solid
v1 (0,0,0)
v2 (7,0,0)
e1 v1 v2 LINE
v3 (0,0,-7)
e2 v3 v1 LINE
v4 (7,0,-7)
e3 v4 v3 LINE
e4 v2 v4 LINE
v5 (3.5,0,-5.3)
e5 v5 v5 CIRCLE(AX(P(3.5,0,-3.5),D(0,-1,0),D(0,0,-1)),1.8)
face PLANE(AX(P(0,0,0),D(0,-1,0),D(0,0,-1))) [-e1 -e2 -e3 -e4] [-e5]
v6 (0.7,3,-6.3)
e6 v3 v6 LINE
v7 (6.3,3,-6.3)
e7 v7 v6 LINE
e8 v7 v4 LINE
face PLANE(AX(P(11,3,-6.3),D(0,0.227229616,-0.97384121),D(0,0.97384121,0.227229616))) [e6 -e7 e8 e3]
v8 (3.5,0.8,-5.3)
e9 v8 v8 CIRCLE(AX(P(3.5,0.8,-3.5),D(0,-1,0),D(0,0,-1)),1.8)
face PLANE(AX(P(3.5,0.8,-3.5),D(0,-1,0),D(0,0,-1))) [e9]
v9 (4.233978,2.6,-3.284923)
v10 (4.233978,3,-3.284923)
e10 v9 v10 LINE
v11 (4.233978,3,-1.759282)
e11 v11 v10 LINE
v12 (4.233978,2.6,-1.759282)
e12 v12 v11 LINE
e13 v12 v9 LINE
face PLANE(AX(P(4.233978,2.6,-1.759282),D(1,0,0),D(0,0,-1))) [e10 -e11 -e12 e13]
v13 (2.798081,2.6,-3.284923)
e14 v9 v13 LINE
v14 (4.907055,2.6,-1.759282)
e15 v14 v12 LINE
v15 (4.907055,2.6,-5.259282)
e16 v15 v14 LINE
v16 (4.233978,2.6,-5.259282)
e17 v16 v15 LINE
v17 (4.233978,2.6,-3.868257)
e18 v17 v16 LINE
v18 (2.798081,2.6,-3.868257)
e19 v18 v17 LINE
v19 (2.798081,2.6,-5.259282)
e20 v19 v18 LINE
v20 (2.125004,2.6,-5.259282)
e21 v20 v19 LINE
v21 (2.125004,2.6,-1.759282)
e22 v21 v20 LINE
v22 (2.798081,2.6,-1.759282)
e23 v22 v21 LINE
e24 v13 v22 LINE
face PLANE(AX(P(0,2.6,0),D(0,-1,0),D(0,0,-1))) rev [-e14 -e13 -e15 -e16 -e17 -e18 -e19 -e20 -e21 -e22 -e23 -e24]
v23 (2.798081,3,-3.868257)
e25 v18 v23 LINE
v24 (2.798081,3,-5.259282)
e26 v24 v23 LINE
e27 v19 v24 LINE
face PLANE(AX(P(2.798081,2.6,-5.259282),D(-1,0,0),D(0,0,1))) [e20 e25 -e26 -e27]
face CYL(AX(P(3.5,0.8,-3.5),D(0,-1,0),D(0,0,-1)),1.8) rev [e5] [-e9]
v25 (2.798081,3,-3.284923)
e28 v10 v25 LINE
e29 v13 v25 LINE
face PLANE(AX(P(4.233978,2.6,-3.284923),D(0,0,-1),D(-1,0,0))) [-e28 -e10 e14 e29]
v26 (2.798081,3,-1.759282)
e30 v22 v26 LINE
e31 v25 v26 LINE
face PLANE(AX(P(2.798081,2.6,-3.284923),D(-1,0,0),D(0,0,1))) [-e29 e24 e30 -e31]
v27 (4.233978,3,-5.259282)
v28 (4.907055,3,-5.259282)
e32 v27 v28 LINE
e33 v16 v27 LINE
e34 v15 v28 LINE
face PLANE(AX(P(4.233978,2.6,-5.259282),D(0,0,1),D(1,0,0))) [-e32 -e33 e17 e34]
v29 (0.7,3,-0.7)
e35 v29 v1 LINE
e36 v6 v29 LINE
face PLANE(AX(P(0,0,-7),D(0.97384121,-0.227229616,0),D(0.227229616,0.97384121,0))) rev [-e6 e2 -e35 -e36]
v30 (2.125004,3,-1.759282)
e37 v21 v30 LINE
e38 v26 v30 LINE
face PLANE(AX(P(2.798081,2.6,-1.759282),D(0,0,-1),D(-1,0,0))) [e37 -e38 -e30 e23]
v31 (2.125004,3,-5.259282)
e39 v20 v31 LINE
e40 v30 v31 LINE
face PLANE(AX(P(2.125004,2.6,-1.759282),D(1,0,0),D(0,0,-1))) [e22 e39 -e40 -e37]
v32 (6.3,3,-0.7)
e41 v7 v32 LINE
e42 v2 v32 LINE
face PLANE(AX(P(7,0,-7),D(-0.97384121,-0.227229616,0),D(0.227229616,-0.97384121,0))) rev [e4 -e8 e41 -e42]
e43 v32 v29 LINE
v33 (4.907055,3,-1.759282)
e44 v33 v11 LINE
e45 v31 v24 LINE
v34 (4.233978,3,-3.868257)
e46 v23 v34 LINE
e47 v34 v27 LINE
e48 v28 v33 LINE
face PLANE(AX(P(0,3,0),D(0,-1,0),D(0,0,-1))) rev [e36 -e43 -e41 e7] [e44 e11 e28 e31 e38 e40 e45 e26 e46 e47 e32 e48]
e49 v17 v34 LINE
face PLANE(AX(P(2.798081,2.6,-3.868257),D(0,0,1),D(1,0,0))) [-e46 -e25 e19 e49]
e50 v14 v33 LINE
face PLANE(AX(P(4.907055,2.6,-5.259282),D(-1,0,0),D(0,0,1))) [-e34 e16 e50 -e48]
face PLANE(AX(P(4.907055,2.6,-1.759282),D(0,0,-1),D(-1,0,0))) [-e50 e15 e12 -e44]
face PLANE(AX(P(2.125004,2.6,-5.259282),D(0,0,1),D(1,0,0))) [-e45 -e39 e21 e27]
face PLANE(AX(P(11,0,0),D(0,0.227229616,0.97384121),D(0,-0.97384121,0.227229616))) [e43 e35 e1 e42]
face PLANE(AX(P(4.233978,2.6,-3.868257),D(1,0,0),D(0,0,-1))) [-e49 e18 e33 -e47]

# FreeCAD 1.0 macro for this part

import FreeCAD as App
import Part
import Sketcher
from FreeCAD import Vector
Q = App.Units.Quantity

doc = App.newDocument("Part")
params = doc.addObject("Spreadsheet::Sheet", "Params")
for row, (alias, value) in enumerate([
    ("sketch1_width", "7 mm"),
    ("pad1_length", "3 mm"),
    ("sketch2_height", "3 mm"),
    ("sketch2_width", "0.7 mm"),
    ("pocket1_length", "7 mm"),
    ("sketch3_width", "3 mm"),
    ("sketch3_height", "0.7 mm"),
    ("pocket2_length", "11 mm"),
    ("sketch4_diameter", "3.6 mm"),
    ("pocket3_length", "0.8 mm"),
    ("sketch5_height", "3.5 mm"),
    ("pocket4_length", "0.4 mm"),
], start=1):
    params.set(f"A{row}", alias)
    params.set(f"B{row}", "=" + value)
    params.setAlias(f"B{row}", alias)

body = doc.addObject("PartDesign::Body", "Body")

# Sketch on XZ plane
sketch1 = body.newObject("Sketcher::SketchObject", "Sketch")
sketch1.AttachmentSupport = (doc.getObject("XZ_Plane"), [""])
sketch1.MapMode = "FlatFace"
sketch1.addGeometry(Part.LineSegment(Vector(0, -7, 0), Vector(0, 0, 0)), False)
sketch1.addGeometry(Part.LineSegment(Vector(0, 0, 0), Vector(7, 0, 0)), False)
sketch1.addGeometry(Part.LineSegment(Vector(7, 0, 0), Vector(7, -7, 0)), False)
sketch1.addGeometry(Part.LineSegment(Vector(7, -7, 0), Vector(0, -7, 0)), False)
sketch1.addConstraint(Sketcher.Constraint("Coincident", 0, 2, 1, 1))
sketch1.addConstraint(Sketcher.Constraint("Coincident", 1, 2, 2, 1))
sketch1.addConstraint(Sketcher.Constraint("Coincident", 2, 2, 3, 1))
sketch1.addConstraint(Sketcher.Constraint("Coincident", 3, 2, 0, 1))
sketch1.addConstraint(Sketcher.Constraint("Vertical", 0))
sketch1.addConstraint(Sketcher.Constraint("Horizontal", 1))
sketch1.addConstraint(Sketcher.Constraint("Vertical", 2))
sketch1.addConstraint(Sketcher.Constraint("Horizontal", 3))
sketch1.addConstraint(Sketcher.Constraint("Coincident", 0, 2, -1, 1))
sketch1.addConstraint(Sketcher.Constraint("Equal", 3, 0))
sketch1.addConstraint(Sketcher.Constraint("DistanceX", 1, 1, 1, 2, Q("7 mm")))
sketch1.setExpression("Constraints[10]", "Params.sketch1_width")
pad1 = body.newObject("PartDesign::Pad", "Pad")
pad1.Profile = sketch1
pad1.setExpression("Length", "Params.pad1_length")
pad1.Reversed = True

# Sketch on XY plane
sketch2 = body.newObject("Sketcher::SketchObject", "Sketch001")
sketch2.AttachmentSupport = (doc.getObject("XY_Plane"), [""])
sketch2.MapMode = "FlatFace"
sketch2.addGeometry(Part.LineSegment(Vector(0, 0, 0), Vector(0.7, 3, 0)), False)
sketch2.addGeometry(Part.LineSegment(Vector(0.7, 3, 0), Vector(0, 3, 0)), False)
sketch2.addGeometry(Part.LineSegment(Vector(0, 3, 0), Vector(0, 0, 0)), False)
sketch2.addGeometry(Part.LineSegment(Vector(6.3, 3, 0), Vector(7, 0, 0)), False)
sketch2.addGeometry(Part.LineSegment(Vector(7, 0, 0), Vector(7, 3, 0)), False)
sketch2.addGeometry(Part.LineSegment(Vector(7, 3, 0), Vector(6.3, 3, 0)), False)
sketch2.addConstraint(Sketcher.Constraint("Coincident", 0, 2, 1, 1))
sketch2.addConstraint(Sketcher.Constraint("Coincident", 1, 2, 2, 1))
sketch2.addConstraint(Sketcher.Constraint("Coincident", 2, 2, 0, 1))
sketch2.addConstraint(Sketcher.Constraint("Coincident", 3, 2, 4, 1))
sketch2.addConstraint(Sketcher.Constraint("Coincident", 4, 2, 5, 1))
sketch2.addConstraint(Sketcher.Constraint("Coincident", 5, 2, 3, 1))
sketch2.addConstraint(Sketcher.Constraint("Horizontal", 1))
sketch2.addConstraint(Sketcher.Constraint("Vertical", 2))
sketch2.addConstraint(Sketcher.Constraint("Vertical", 4))
sketch2.addConstraint(Sketcher.Constraint("Horizontal", 5))
sketch2.addConstraint(Sketcher.Constraint("Coincident", 2, 2, -1, 1))
sketch2.addConstraint(Sketcher.Constraint("PointOnObject", 3, 2, -1))
sketch2.addConstraint(Sketcher.Constraint("Horizontal", 1, 2, 4, 2))
sketch2.addConstraint(Sketcher.Constraint("Equal", 1, 5))
sketch2.addConstraint(Sketcher.Constraint("DistanceY", 2, 2, 2, 1, Q("3 mm")))
sketch2.addConstraint(Sketcher.Constraint("DistanceX", 1, 2, 1, 1, Q("0.7 mm")))
sketch2.addConstraint(Sketcher.Constraint("DistanceX", -1, 1, 3, 2, Q("7 mm")))
sketch2.setExpression("Constraints[14]", "Params.sketch2_height")
sketch2.setExpression("Constraints[15]", "Params.sketch2_width")
pocket1 = body.newObject("PartDesign::Pocket", "Pocket")
pocket1.Profile = sketch2
pocket1.setExpression("Length", "Params.pocket1_length")

# Sketch on YZ plane
sketch3 = body.newObject("Sketcher::SketchObject", "Sketch002")
sketch3.AttachmentSupport = (doc.getObject("YZ_Plane"), [""])
sketch3.MapMode = "FlatFace"
sketch3.addGeometry(Part.LineSegment(Vector(0, 0, 0), Vector(3, -0.7, 0)), False)
sketch3.addGeometry(Part.LineSegment(Vector(3, -0.7, 0), Vector(3, 0, 0)), False)
sketch3.addGeometry(Part.LineSegment(Vector(3, 0, 0), Vector(0, 0, 0)), False)
sketch3.addGeometry(Part.LineSegment(Vector(3, -7, 0), Vector(3, -6.3, 0)), False)
sketch3.addGeometry(Part.LineSegment(Vector(3, -6.3, 0), Vector(0, -7, 0)), False)
sketch3.addGeometry(Part.LineSegment(Vector(0, -7, 0), Vector(3, -7, 0)), False)
sketch3.addConstraint(Sketcher.Constraint("Coincident", 0, 2, 1, 1))
sketch3.addConstraint(Sketcher.Constraint("Coincident", 1, 2, 2, 1))
sketch3.addConstraint(Sketcher.Constraint("Coincident", 2, 2, 0, 1))
sketch3.addConstraint(Sketcher.Constraint("Coincident", 3, 2, 4, 1))
sketch3.addConstraint(Sketcher.Constraint("Coincident", 4, 2, 5, 1))
sketch3.addConstraint(Sketcher.Constraint("Coincident", 5, 2, 3, 1))
sketch3.addConstraint(Sketcher.Constraint("Vertical", 1))
sketch3.addConstraint(Sketcher.Constraint("Horizontal", 2))
sketch3.addConstraint(Sketcher.Constraint("Vertical", 3))
sketch3.addConstraint(Sketcher.Constraint("Horizontal", 5))
sketch3.addConstraint(Sketcher.Constraint("Coincident", 2, 2, -1, 1))
sketch3.addConstraint(Sketcher.Constraint("PointOnObject", 4, 2, -2))
sketch3.addConstraint(Sketcher.Constraint("Vertical", 1, 2, 3, 2))
sketch3.addConstraint(Sketcher.Constraint("Equal", 1, 3))
sketch3.addConstraint(Sketcher.Constraint("DistanceX", 2, 2, 2, 1, Q("3 mm")))
sketch3.addConstraint(Sketcher.Constraint("DistanceY", 1, 1, 1, 2, Q("0.7 mm")))
sketch3.addConstraint(Sketcher.Constraint("DistanceY", 4, 2, -1, 1, Q("7 mm")))
sketch3.setExpression("Constraints[14]", "Params.sketch3_width")
sketch3.setExpression("Constraints[15]", "Params.sketch3_height")
pocket2 = body.newObject("PartDesign::Pocket", "Pocket001")
pocket2.Profile = sketch3
pocket2.setExpression("Length", "Params.pocket2_length")
pocket2.Reversed = True

# Sketch on XZ plane
sketch4 = body.newObject("Sketcher::SketchObject", "Sketch003")
sketch4.AttachmentSupport = (doc.getObject("XZ_Plane"), [""])
sketch4.MapMode = "FlatFace"
sketch4.addGeometry(Part.Circle(Vector(3.5, -3.5, 0), Vector(0, 0, 1), 1.8), False)
sketch4.addConstraint(Sketcher.Constraint("Diameter", 0, Q("3.6 mm")))
sketch4.addConstraint(Sketcher.Constraint("DistanceX", -1, 1, 0, 3, Q("3.5 mm")))
sketch4.addConstraint(Sketcher.Constraint("DistanceY", 0, 3, -1, 1, Q("3.5 mm")))
sketch4.setExpression("Constraints[0]", "Params.sketch4_diameter")
pocket3 = body.newObject("PartDesign::Pocket", "Pocket002")
pocket3.Profile = sketch4
pocket3.setExpression("Length", "Params.pocket3_length")

# Sketch on XZ plane
sketch5 = body.newObject("Sketcher::SketchObject", "Sketch004")
sketch5.AttachmentSupport = (doc.getObject("XZ_Plane"), [""])
sketch5.MapMode = "FlatFace"
sketch5.AttachmentOffset = App.Placement(Vector(0, 0, -3), App.Rotation())
sketch5.addGeometry(Part.LineSegment(Vector(2.125004, -5.259282, 0), Vector(2.125004, -1.759282, 0)), False)
sketch5.addGeometry(Part.LineSegment(Vector(2.125004, -1.759282, 0), Vector(2.798081, -1.759282, 0)), False)
sketch5.addGeometry(Part.LineSegment(Vector(2.798081, -1.759282, 0), Vector(2.798081, -3.284923, 0)), False)
sketch5.addGeometry(Part.LineSegment(Vector(2.798081, -3.284923, 0), Vector(4.233978, -3.284923, 0)), False)
sketch5.addGeometry(Part.LineSegment(Vector(4.233978, -3.284923, 0), Vector(4.233978, -1.759282, 0)), False)
sketch5.addGeometry(Part.LineSegment(Vector(4.233978, -1.759282, 0), Vector(4.907055, -1.759282, 0)), False)
sketch5.addGeometry(Part.LineSegment(Vector(4.907055, -1.759282, 0), Vector(4.907055, -5.259282, 0)), False)
sketch5.addGeometry(Part.LineSegment(Vector(4.907055, -5.259282, 0), Vector(4.233978, -5.259282, 0)), False)
sketch5.addGeometry(Part.LineSegment(Vector(4.233978, -5.259282, 0), Vector(4.233978, -3.868257, 0)), False)
sketch5.addGeometry(Part.LineSegment(Vector(4.233978, -3.868257, 0), Vector(2.798081, -3.868257, 0)), False)
sketch5.addGeometry(Part.LineSegment(Vector(2.798081, -3.868257, 0), Vector(2.798081, -5.259282, 0)), False)
sketch5.addGeometry(Part.LineSegment(Vector(2.798081, -5.259282, 0), Vector(2.125004, -5.259282, 0)), False)
sketch5.addConstraint(Sketcher.Constraint("Coincident", 0, 2, 1, 1))
sketch5.addConstraint(Sketcher.Constraint("Coincident", 1, 2, 2, 1))
sketch5.addConstraint(Sketcher.Constraint("Coincident", 2, 2, 3, 1))
sketch5.addConstraint(Sketcher.Constraint("Coincident", 3, 2, 4, 1))
sketch5.addConstraint(Sketcher.Constraint("Coincident", 4, 2, 5, 1))
sketch5.addConstraint(Sketcher.Constraint("Coincident", 5, 2, 6, 1))
sketch5.addConstraint(Sketcher.Constraint("Coincident", 6, 2, 7, 1))
sketch5.addConstraint(Sketcher.Constraint("Coincident", 7, 2, 8, 1))
sketch5.addConstraint(Sketcher.Constraint("Coincident", 8, 2, 9, 1))
sketch5.addConstraint(Sketcher.Constraint("Coincident", 9, 2, 10, 1))
sketch5.addConstraint(Sketcher.Constraint("Coincident", 10, 2, 11, 1))
sketch5.addConstraint(Sketcher.Constraint("Coincident", 11, 2, 0, 1))
sketch5.addConstraint(Sketcher.Constraint("Vertical", 0))
sketch5.addConstraint(Sketcher.Constraint("Horizontal", 1))
sketch5.addConstraint(Sketcher.Constraint("Vertical", 2))
sketch5.addConstraint(Sketcher.Constraint("Horizontal", 3))
sketch5.addConstraint(Sketcher.Constraint("Vertical", 4))
sketch5.addConstraint(Sketcher.Constraint("Horizontal", 5))
sketch5.addConstraint(Sketcher.Constraint("Vertical", 6))
sketch5.addConstraint(Sketcher.Constraint("Horizontal", 7))
sketch5.addConstraint(Sketcher.Constraint("Vertical", 8))
sketch5.addConstraint(Sketcher.Constraint("Horizontal", 9))
sketch5.addConstraint(Sketcher.Constraint("Vertical", 10))
sketch5.addConstraint(Sketcher.Constraint("Horizontal", 11))
sketch5.addConstraint(Sketcher.Constraint("Horizontal", 1, 2, 4, 2))
sketch5.addConstraint(Sketcher.Constraint("Horizontal", 7, 2, 10, 2))
sketch5.addConstraint(Sketcher.Constraint("Vertical", 4, 2, 7, 2))
sketch5.addConstraint(Sketcher.Constraint("Vertical", 2, 2, 9, 2))
sketch5.addConstraint(Sketcher.Constraint("Equal", 1, 5))
sketch5.addConstraint(Sketcher.Constraint("DistanceY", 0, 1, 0, 2, Q("3.5 mm")))
sketch5.addConstraint(Sketcher.Constraint("DistanceY", 2, 2, 2, 1, Q("1.525641 mm")))
sketch5.addConstraint(Sketcher.Constraint("DistanceX", 1, 1, 1, 2, Q("0.673077 mm")))
sketch5.addConstraint(Sketcher.Constraint("DistanceX", 3, 1, 3, 2, Q("1.435897 mm")))
sketch5.addConstraint(Sketcher.Constraint("DistanceY", 8, 1, 8, 2, Q("1.391026 mm")))
sketch5.addConstraint(Sketcher.Constraint("DistanceX", -1, 1, 1, 2, Q("2.798081 mm")))
sketch5.addConstraint(Sketcher.Constraint("DistanceY", 0, 2, -1, 1, Q("1.759282 mm")))
sketch5.setExpression("Constraints[29]", "Params.sketch5_height")
pocket4 = body.newObject("PartDesign::Pocket", "Pocket003")
pocket4.Profile = sketch5
pocket4.setExpression("Length", "Params.pocket4_length")
pocket4.Reversed = True

doc.recompute()
